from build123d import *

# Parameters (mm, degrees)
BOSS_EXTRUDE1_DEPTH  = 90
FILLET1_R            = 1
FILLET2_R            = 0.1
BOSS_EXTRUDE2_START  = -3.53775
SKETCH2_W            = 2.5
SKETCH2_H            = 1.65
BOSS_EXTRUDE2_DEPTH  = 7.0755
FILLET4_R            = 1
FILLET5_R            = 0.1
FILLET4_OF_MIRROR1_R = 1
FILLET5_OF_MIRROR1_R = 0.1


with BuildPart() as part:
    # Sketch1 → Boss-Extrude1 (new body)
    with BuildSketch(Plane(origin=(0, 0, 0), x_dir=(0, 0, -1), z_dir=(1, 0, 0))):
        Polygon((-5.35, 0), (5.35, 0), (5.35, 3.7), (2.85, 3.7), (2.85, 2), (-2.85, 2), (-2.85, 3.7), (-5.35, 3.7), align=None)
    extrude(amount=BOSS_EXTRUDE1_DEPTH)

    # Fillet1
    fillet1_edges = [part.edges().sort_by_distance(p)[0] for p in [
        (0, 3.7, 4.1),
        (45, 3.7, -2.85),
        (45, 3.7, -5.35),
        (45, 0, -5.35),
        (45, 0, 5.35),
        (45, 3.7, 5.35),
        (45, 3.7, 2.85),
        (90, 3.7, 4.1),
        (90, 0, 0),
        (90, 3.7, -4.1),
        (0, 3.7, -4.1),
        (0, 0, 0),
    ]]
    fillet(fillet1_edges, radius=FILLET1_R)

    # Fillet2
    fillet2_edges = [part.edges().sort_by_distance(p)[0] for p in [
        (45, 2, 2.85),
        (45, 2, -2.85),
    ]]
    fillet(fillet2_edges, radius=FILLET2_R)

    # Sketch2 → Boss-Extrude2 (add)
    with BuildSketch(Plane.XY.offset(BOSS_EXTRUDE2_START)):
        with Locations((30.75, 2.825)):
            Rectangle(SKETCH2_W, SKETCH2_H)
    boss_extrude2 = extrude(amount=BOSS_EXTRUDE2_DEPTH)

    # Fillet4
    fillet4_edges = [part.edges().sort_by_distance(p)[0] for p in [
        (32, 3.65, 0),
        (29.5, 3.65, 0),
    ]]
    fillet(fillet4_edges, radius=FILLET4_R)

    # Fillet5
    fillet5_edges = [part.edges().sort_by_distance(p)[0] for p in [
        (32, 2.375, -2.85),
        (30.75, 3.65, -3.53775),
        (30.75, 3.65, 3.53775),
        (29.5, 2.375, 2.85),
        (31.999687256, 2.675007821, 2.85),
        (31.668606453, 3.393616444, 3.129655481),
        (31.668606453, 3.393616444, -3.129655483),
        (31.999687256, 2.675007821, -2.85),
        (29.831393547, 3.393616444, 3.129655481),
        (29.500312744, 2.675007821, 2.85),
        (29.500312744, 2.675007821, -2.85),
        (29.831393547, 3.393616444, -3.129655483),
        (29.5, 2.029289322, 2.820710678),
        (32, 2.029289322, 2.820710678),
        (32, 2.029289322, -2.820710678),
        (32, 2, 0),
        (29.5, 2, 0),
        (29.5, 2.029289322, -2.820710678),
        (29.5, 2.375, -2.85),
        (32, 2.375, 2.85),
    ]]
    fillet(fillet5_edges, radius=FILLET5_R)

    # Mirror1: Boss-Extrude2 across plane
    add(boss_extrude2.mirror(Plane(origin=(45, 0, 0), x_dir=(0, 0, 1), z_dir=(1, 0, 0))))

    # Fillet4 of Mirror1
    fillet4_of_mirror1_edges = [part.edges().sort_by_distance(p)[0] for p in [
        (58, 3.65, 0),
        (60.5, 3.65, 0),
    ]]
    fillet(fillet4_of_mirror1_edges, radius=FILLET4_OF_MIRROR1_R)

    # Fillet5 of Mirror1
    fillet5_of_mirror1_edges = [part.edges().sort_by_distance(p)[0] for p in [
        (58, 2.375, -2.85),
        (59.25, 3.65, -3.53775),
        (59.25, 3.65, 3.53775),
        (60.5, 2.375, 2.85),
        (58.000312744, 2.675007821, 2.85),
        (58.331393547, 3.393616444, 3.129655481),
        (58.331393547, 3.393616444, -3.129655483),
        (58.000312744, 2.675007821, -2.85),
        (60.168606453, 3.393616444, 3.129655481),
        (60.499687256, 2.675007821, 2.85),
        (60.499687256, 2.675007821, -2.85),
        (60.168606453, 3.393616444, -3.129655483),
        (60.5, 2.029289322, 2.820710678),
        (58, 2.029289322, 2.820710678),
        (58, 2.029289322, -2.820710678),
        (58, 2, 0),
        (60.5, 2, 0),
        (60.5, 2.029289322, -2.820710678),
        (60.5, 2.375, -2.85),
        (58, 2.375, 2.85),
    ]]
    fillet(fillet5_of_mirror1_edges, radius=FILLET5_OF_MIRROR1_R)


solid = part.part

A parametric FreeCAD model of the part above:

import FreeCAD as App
import Part
import Sketcher


def edges_at(feature, points):
    """Names of the edges that pass closest to the given points."""
    edges = feature.Shape.Edges
    near = lambda p: min(range(len(edges)), key=lambda i: edges[i].distToShape(Part.Vertex(*p))[0])
    return sorted({f"Edge{near(p) + 1}" for p in points})

doc = App.newDocument("Part")
body = doc.addObject("PartDesign::Body", "Body")

sketch1 = body.newObject("Sketcher::SketchObject", "Sketch")
sketch1.AttachmentSupport = (doc.getObject("YZ_Plane"), [""])
sketch1.MapMode = "FlatFace"
sketch1.addGeometry(Part.LineSegment(App.Vector(0, 5.3, 0), App.Vector(0, -5.3, 0)), False)
sketch1.addGeometry(Part.LineSegment(App.Vector(0, -5.3, 0), App.Vector(3.7, -5.3, 0)), False)
sketch1.addGeometry(Part.LineSegment(App.Vector(3.7, -5.3, 0), App.Vector(3.7, -2.9, 0)), False)
sketch1.addGeometry(Part.LineSegment(App.Vector(3.7, -2.9, 0), App.Vector(2, -2.9, 0)), False)
sketch1.addGeometry(Part.LineSegment(App.Vector(2, -2.9, 0), App.Vector(2, 2.9, 0)), False)
sketch1.addGeometry(Part.LineSegment(App.Vector(2, 2.9, 0), App.Vector(3.7, 2.9, 0)), False)
sketch1.addGeometry(Part.LineSegment(App.Vector(3.7, 2.9, 0), App.Vector(3.7, 5.3, 0)), False)
sketch1.addGeometry(Part.LineSegment(App.Vector(3.7, 5.3, 0), App.Vector(0, 5.3, 0)), False)
sketch1.addConstraint(Sketcher.Constraint("Coincident", 0, 2, 1, 1))
sketch1.addConstraint(Sketcher.Constraint("Coincident", 1, 2, 2, 1))
sketch1.addConstraint(Sketcher.Constraint("Coincident", 2, 2, 3, 1))
sketch1.addConstraint(Sketcher.Constraint("Coincident", 3, 2, 4, 1))
sketch1.addConstraint(Sketcher.Constraint("Coincident", 4, 2, 5, 1))
sketch1.addConstraint(Sketcher.Constraint("Coincident", 5, 2, 6, 1))
sketch1.addConstraint(Sketcher.Constraint("Coincident", 6, 2, 7, 1))
sketch1.addConstraint(Sketcher.Constraint("Coincident", 7, 2, 0, 1))
sketch1.addConstraint(Sketcher.Constraint("Vertical", 0))
sketch1.addConstraint(Sketcher.Constraint("Horizontal", 1))
sketch1.addConstraint(Sketcher.Constraint("Vertical", 2))
sketch1.addConstraint(Sketcher.Constraint("Horizontal", 3))
sketch1.addConstraint(Sketcher.Constraint("Vertical", 4))
sketch1.addConstraint(Sketcher.Constraint("Horizontal", 5))
sketch1.addConstraint(Sketcher.Constraint("Vertical", 6))
sketch1.addConstraint(Sketcher.Constraint("Horizontal", 7))
sketch1.addConstraint(Sketcher.Constraint("Symmetric", 0, 2, 7, 2, -1, 1))
sketch1.addConstraint(Sketcher.Constraint("Symmetric", 2, 2, 5, 2, -1))
sketch1.addConstraint(Sketcher.Constraint("DistanceX", 1, 1, 1, 2, 3.7))
sketch1.addConstraint(Sketcher.Constraint("DistanceX", 3, 2, 3, 1, 1.7))
sketch1.addConstraint(Sketcher.Constraint("DistanceY", 0, 2, 0, 1, 10.7))
sketch1.addConstraint(Sketcher.Constraint("DistanceY", 2, 1, 2, 2, 2.5))
pad1 = body.newObject("PartDesign::Pad", "Pad")
pad1.Profile = sketch1
pad1.Length = 90
doc.recompute()

fillet = body.newObject("PartDesign::Fillet", "Fillet")
fillet.Base = (pad1, edges_at(pad1, [
    (0, 3.7, 4.1),
    (45, 3.7, -2.85),
    (45, 3.7, -5.35),
    (45, 0, -5.35),
    (45, 0, 5.35),
    (45, 3.7, 5.35),
    (45, 3.7, 2.85),
    (90, 3.7, 4.1),
    (90, 0, 0),
    (90, 3.7, -4.1),
    (0, 3.7, -4.1),
    (0, 0, 0),
]))
fillet.Radius = 1
doc.recompute()

fillet2 = body.newObject("PartDesign::Fillet", "Fillet001")
fillet2.Base = (fillet, edges_at(fillet, [(45, 2, 2.85), (45, 2, -2.85)]))
fillet2.Radius = 0.1

sketch2 = body.newObject("Sketcher::SketchObject", "Sketch001")
sketch2.AttachmentSupport = (doc.getObject("XY_Plane"), [""])
sketch2.MapMode = "FlatFace"
sketch2.AttachmentOffset = App.Placement(App.Vector(0, 0, -3.53775), App.Rotation())
sketch2.addGeometry(Part.LineSegment(App.Vector(29.5, 3.6, 0), App.Vector(29.5, 2, 0)), False)
sketch2.addGeometry(Part.LineSegment(App.Vector(29.5, 2, 0), App.Vector(32, 2, 0)), False)
sketch2.addGeometry(Part.LineSegment(App.Vector(32, 2, 0), App.Vector(32, 3.6, 0)), False)
sketch2.addGeometry(Part.LineSegment(App.Vector(32, 3.6, 0), App.Vector(29.5, 3.6, 0)), False)
sketch2.addConstraint(Sketcher.Constraint("Coincident", 0, 2, 1, 1))
sketch2.addConstraint(Sketcher.Constraint("Coincident", 1, 2, 2, 1))
sketch2.addConstraint(Sketcher.Constraint("Coincident", 2, 2, 3, 1))
sketch2.addConstraint(Sketcher.Constraint("Coincident", 3, 2, 0, 1))
sketch2.addConstraint(Sketcher.Constraint("Vertical", 0))
sketch2.addConstraint(Sketcher.Constraint("Horizontal", 1))
sketch2.addConstraint(Sketcher.Constraint("Vertical", 2))
sketch2.addConstraint(Sketcher.Constraint("Horizontal", 3))
sketch2.addConstraint(Sketcher.Constraint("DistanceX", 1, 1, 1, 2, 2.5))
sketch2.addConstraint(Sketcher.Constraint("DistanceY", -1, 1, 0, 2, 2.0))
sketch2.addConstraint(Sketcher.Constraint("DistanceX", -1, 1, 1, 2, 32.0))
sketch2.addConstraint(Sketcher.Constraint("DistanceY", 0, 2, 0, 1, 1.65))
pad2 = body.newObject("PartDesign::Pad", "Pad001")
pad2.Profile = sketch2
pad2.Length = 7.0755
doc.recompute()

fillet3 = body.newObject("PartDesign::Fillet", "Fillet002")
fillet3.Base = (pad2, edges_at(pad2, [(32, 3.65, 0), (29.5, 3.65, 0)]))
fillet3.Radius = 1
doc.recompute()

fillet4 = body.newObject("PartDesign::Fillet", "Fillet003")
fillet4.Base = (fillet3, edges_at(fillet3, [
    (32, 2.375, -2.85),
    (30.75, 3.65, -3.538),
    (30.75, 3.65, 3.538),
    (29.5, 2.375, 2.85),
    (32, 2.675, 2.85),
    (31.669, 3.394, 3.13),
    (31.669, 3.394, -3.13),
    (32, 2.675, -2.85),
    (29.831, 3.394, 3.13),
    (29.5, 2.675, 2.85),
    (29.5, 2.675, -2.85),
    (29.831, 3.394, -3.13),
    (29.5, 2.029, 2.821),
    (32, 2.029, 2.821),
    (32, 2.029, -2.821),
    (32, 2, 0),
    (29.5, 2, 0),
    (29.5, 2.029, -2.821),
    (29.5, 2.375, -2.85),
    (32, 2.375, 2.85),
]))
fillet4.Radius = 0.1
doc.recompute()

datumplane = body.newObject("PartDesign::Plane", "DatumPlane")
datumplane.AttachmentSupport = (doc.getObject("YZ_Plane"), [""])
datumplane.MapMode = "FlatFace"
datumplane.AttachmentOffset = App.Placement(App.Vector(0, 0, 45), App.Rotation())
mirrored = body.newObject("PartDesign::Mirrored", "Mirrored")
mirrored.Originals = [pad2]
mirrored.MirrorPlane = (datumplane, [""])
body.Tip = mirrored
doc.recompute()

fillet5 = body.newObject("PartDesign::Fillet", "Fillet004")
fillet5.Base = (mirrored, edges_at(mirrored, [(58, 3.65, 0), (60.5, 3.65, 0)]))
fillet5.Radius = 1
doc.recompute()

fillet6 = body.newObject("PartDesign::Fillet", "Fillet005")
fillet6.Base = (fillet5, edges_at(fillet5, [
    (58, 2.375, -2.85),
    (59.25, 3.65, -3.538),
    (59.25, 3.65, 3.538),
    (60.5, 2.375, 2.85),
    (58, 2.675, 2.85),
    (58.331, 3.394, 3.13),
    (58.331, 3.394, -3.13),
    (58, 2.675, -2.85),
    (60.169, 3.394, 3.13),
    (60.5, 2.675, 2.85),
    (60.5, 2.675, -2.85),
    (60.169, 3.394, -3.13),
    (60.5, 2.029, 2.821),
    (58, 2.029, 2.821),
    (58, 2.029, -2.821),
    (58, 2, 0),
    (60.5, 2, 0),
    (60.5, 2.029, -2.821),
    (60.5, 2.375, -2.85),
    (58, 2.375, 2.85),
]))
fillet6.Radius = 0.1

doc.recompute()
